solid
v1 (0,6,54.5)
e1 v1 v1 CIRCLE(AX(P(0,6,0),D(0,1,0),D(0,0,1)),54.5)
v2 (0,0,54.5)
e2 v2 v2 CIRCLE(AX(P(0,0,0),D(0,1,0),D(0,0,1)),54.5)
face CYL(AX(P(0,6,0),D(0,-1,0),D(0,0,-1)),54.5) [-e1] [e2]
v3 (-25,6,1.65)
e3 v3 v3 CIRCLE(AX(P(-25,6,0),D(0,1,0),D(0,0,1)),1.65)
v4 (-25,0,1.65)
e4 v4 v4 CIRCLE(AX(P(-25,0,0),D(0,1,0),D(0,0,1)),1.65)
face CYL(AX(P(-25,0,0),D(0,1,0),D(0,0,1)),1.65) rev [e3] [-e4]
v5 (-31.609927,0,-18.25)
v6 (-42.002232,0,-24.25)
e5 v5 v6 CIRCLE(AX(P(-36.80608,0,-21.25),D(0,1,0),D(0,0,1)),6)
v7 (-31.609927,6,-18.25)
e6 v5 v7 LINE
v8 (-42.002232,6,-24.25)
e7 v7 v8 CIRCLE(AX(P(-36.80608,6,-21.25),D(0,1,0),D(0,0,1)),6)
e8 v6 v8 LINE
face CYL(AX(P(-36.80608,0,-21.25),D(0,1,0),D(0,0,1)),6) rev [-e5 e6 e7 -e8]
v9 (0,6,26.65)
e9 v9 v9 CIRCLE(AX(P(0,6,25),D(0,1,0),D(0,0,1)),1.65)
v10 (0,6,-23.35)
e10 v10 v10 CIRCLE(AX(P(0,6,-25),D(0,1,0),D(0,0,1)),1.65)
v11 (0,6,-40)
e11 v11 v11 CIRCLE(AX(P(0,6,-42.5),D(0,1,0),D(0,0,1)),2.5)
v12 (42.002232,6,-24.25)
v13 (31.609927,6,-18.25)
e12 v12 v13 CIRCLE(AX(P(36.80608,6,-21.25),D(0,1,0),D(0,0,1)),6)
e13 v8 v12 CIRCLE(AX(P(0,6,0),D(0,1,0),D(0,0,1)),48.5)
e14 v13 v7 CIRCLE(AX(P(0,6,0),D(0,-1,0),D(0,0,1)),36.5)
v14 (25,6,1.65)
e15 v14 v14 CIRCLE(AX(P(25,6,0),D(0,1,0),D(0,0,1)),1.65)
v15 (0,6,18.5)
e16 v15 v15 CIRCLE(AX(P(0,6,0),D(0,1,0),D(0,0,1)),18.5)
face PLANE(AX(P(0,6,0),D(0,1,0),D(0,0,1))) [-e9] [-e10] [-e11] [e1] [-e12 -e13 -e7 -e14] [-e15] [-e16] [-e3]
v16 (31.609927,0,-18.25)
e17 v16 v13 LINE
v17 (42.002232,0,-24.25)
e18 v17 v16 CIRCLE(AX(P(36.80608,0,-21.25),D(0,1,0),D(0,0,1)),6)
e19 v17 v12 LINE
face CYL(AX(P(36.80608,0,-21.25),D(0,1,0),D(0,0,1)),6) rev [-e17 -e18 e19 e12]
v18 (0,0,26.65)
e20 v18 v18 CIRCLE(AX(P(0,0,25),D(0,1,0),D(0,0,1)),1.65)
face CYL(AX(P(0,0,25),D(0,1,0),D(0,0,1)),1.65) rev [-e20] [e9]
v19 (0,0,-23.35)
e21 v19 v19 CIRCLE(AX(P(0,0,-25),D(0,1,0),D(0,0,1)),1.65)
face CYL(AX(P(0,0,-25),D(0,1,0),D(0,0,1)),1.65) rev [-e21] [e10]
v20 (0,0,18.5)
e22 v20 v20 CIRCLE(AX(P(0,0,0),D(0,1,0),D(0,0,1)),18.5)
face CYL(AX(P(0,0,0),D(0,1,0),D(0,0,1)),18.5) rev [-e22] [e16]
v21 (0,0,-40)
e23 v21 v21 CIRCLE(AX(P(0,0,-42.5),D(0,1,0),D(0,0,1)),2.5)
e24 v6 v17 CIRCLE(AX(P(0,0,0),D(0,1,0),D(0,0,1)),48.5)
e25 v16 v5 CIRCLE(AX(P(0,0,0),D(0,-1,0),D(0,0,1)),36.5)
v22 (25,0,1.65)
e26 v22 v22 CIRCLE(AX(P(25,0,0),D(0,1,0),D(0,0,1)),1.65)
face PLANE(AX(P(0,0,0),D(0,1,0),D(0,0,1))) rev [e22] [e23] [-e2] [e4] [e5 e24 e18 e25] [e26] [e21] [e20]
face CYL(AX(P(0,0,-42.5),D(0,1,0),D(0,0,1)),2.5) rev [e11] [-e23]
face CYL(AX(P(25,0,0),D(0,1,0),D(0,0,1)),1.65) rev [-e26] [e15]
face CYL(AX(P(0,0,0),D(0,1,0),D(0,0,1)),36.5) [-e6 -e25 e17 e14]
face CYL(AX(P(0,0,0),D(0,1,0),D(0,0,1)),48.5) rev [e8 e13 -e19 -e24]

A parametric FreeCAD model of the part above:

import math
import FreeCAD as App
import Part
import Sketcher

V = App.Vector

doc = App.newDocument("Part")
body = doc.addObject("PartDesign::Body", "Body")

sketch1 = body.newObject("Sketcher::SketchObject", "Sketch")
sketch1.AttachmentSupport = (doc.getObject("XZ_Plane"), [""])
sketch1.MapMode = "FlatFace"
sketch1.addGeometry(Part.Circle(V(0, 0, 0), V(0, 0, 1), 54.5), False)
sketch1.addConstraint(Sketcher.Constraint("Coincident", 0, 3, -1, 1))
sketch1.addConstraint(Sketcher.Constraint("Diameter", 0, 109.0))
pad1 = body.newObject("PartDesign::Pad", "Pad")
pad1.Profile = sketch1
pad1.Length = 6
pad1.Reversed = True

sketch2 = body.newObject("Sketcher::SketchObject", "Sketch001")
sketch2.AttachmentSupport = (doc.getObject("XZ_Plane"), [""])
sketch2.MapMode = "FlatFace"
sketch2.AttachmentOffset = App.Placement(V(0, 0, -6), App.Rotation())
sketch2.addGeometry(Part.Circle(V(0, -42.5, 0), V(0, 0, 1), 2.5), False)
sketch2.addGeometry(Part.ArcOfCircle(Part.Circle(V(0, 0, 0), V(0, 0, 1), 48.5), math.radians(-30), math.radians(210)), False)
sketch2.addGeometry(Part.ArcOfCircle(Part.Circle(V(36.80608, -21.25, 0), V(0, 0, 1), 6), math.radians(150), math.radians(330)), False)
sketch2.addGeometry(Part.ArcOfCircle(Part.Circle(V(0, 0, 0), V(0, 0, 1), 36.5), math.radians(-30), math.radians(210)), False)
sketch2.addGeometry(Part.ArcOfCircle(Part.Circle(V(-36.80608, -21.25, 0), V(0, 0, 1), 6), math.radians(-150), math.radians(30)), False)
sketch2.addConstraint(Sketcher.Constraint("Tangent", 1, 1, 2, 2))
sketch2.addConstraint(Sketcher.Constraint("Tangent", 2, 1, 3, 1))
sketch2.addConstraint(Sketcher.Constraint("Tangent", 3, 2, 4, 2))
sketch2.addConstraint(Sketcher.Constraint("Tangent", 4, 1, 1, 2))
sketch2.addConstraint(Sketcher.Constraint("Coincident", 1, 3, -1, 1))
sketch2.addConstraint(Sketcher.Constraint("Coincident", 3, 3, -1, 1))
sketch2.addConstraint(Sketcher.Constraint("PointOnObject", 0, 3, -2))
sketch2.addConstraint(Sketcher.Constraint("Horizontal", 2, 3, 4, 3))
sketch2.addConstraint(Sketcher.Constraint("Diameter", 0, 5.0))
sketch2.addConstraint(Sketcher.Constraint("Radius", 2, 6.0))
sketch2.addConstraint(Sketcher.Constraint("Radius", 1, 48.5))
sketch2.addConstraint(Sketcher.Constraint("DistanceY", 1, 1, 2, 3, 3.0))
sketch2.addConstraint(Sketcher.Constraint("DistanceY", 0, 3, -1, 1, 42.5))
pocket1 = body.newObject("PartDesign::Pocket", "Pocket")
pocket1.Profile = sketch2
pocket1.Length = 6
pocket1.Reversed = True

sketch3 = body.newObject("Sketcher::SketchObject", "Sketch002")
sketch3.AttachmentSupport = (doc.getObject("XZ_Plane"), [""])
sketch3.MapMode = "FlatFace"
sketch3.AttachmentOffset = App.Placement(V(0, 0, -6), App.Rotation())
sketch3.addGeometry(Part.Circle(V(0, 0, 0), V(0, 0, 1), 18.5), False)
sketch3.addGeometry(Part.Circle(V(0, -25, 0), V(0, 0, 1), 1.65), False)
sketch3.addGeometry(Part.Circle(V(-25, 0, 0), V(0, 0, 1), 1.65), False)
sketch3.addGeometry(Part.Circle(V(0, 25, 0), V(0, 0, 1), 1.65), False)
sketch3.addGeometry(Part.Circle(V(25, 0, 0), V(0, 0, 1), 1.65), False)
sketch3.addConstraint(Sketcher.Constraint("Coincident", 0, 3, -1, 1))
sketch3.addConstraint(Sketcher.Constraint("Equal", 1, 2))
sketch3.addConstraint(Sketcher.Constraint("Equal", 2, 3))
sketch3.addConstraint(Sketcher.Constraint("Equal", 3, 4))
sketch3.addConstraint(Sketcher.Constraint("Symmetric", 1, 3, 3, 3, -1, 1))
sketch3.addConstraint(Sketcher.Constraint("Symmetric", 2, 3, 4, 3, -1, 1))
sketch3.addConstraint(Sketcher.Constraint("PointOnObject", 1, 3, -2))
sketch3.addConstraint(Sketcher.Constraint("PointOnObject", 2, 3, -1))
sketch3.addConstraint(Sketcher.Constraint("Diameter", 0, 37.0))
sketch3.addConstraint(Sketcher.Constraint("Diameter", 1, 3.3))
sketch3.addConstraint(Sketcher.Constraint("DistanceY", 1, 3, -1, 1, 25.0))
sketch3.addConstraint(Sketcher.Constraint("DistanceX", 2, 3, -1, 1, 25.0))
pocket2 = body.newObject("PartDesign::Pocket", "Pocket001")
pocket2.Profile = sketch3
pocket2.Length = 6
pocket2.Reversed = True

doc.recompute()
